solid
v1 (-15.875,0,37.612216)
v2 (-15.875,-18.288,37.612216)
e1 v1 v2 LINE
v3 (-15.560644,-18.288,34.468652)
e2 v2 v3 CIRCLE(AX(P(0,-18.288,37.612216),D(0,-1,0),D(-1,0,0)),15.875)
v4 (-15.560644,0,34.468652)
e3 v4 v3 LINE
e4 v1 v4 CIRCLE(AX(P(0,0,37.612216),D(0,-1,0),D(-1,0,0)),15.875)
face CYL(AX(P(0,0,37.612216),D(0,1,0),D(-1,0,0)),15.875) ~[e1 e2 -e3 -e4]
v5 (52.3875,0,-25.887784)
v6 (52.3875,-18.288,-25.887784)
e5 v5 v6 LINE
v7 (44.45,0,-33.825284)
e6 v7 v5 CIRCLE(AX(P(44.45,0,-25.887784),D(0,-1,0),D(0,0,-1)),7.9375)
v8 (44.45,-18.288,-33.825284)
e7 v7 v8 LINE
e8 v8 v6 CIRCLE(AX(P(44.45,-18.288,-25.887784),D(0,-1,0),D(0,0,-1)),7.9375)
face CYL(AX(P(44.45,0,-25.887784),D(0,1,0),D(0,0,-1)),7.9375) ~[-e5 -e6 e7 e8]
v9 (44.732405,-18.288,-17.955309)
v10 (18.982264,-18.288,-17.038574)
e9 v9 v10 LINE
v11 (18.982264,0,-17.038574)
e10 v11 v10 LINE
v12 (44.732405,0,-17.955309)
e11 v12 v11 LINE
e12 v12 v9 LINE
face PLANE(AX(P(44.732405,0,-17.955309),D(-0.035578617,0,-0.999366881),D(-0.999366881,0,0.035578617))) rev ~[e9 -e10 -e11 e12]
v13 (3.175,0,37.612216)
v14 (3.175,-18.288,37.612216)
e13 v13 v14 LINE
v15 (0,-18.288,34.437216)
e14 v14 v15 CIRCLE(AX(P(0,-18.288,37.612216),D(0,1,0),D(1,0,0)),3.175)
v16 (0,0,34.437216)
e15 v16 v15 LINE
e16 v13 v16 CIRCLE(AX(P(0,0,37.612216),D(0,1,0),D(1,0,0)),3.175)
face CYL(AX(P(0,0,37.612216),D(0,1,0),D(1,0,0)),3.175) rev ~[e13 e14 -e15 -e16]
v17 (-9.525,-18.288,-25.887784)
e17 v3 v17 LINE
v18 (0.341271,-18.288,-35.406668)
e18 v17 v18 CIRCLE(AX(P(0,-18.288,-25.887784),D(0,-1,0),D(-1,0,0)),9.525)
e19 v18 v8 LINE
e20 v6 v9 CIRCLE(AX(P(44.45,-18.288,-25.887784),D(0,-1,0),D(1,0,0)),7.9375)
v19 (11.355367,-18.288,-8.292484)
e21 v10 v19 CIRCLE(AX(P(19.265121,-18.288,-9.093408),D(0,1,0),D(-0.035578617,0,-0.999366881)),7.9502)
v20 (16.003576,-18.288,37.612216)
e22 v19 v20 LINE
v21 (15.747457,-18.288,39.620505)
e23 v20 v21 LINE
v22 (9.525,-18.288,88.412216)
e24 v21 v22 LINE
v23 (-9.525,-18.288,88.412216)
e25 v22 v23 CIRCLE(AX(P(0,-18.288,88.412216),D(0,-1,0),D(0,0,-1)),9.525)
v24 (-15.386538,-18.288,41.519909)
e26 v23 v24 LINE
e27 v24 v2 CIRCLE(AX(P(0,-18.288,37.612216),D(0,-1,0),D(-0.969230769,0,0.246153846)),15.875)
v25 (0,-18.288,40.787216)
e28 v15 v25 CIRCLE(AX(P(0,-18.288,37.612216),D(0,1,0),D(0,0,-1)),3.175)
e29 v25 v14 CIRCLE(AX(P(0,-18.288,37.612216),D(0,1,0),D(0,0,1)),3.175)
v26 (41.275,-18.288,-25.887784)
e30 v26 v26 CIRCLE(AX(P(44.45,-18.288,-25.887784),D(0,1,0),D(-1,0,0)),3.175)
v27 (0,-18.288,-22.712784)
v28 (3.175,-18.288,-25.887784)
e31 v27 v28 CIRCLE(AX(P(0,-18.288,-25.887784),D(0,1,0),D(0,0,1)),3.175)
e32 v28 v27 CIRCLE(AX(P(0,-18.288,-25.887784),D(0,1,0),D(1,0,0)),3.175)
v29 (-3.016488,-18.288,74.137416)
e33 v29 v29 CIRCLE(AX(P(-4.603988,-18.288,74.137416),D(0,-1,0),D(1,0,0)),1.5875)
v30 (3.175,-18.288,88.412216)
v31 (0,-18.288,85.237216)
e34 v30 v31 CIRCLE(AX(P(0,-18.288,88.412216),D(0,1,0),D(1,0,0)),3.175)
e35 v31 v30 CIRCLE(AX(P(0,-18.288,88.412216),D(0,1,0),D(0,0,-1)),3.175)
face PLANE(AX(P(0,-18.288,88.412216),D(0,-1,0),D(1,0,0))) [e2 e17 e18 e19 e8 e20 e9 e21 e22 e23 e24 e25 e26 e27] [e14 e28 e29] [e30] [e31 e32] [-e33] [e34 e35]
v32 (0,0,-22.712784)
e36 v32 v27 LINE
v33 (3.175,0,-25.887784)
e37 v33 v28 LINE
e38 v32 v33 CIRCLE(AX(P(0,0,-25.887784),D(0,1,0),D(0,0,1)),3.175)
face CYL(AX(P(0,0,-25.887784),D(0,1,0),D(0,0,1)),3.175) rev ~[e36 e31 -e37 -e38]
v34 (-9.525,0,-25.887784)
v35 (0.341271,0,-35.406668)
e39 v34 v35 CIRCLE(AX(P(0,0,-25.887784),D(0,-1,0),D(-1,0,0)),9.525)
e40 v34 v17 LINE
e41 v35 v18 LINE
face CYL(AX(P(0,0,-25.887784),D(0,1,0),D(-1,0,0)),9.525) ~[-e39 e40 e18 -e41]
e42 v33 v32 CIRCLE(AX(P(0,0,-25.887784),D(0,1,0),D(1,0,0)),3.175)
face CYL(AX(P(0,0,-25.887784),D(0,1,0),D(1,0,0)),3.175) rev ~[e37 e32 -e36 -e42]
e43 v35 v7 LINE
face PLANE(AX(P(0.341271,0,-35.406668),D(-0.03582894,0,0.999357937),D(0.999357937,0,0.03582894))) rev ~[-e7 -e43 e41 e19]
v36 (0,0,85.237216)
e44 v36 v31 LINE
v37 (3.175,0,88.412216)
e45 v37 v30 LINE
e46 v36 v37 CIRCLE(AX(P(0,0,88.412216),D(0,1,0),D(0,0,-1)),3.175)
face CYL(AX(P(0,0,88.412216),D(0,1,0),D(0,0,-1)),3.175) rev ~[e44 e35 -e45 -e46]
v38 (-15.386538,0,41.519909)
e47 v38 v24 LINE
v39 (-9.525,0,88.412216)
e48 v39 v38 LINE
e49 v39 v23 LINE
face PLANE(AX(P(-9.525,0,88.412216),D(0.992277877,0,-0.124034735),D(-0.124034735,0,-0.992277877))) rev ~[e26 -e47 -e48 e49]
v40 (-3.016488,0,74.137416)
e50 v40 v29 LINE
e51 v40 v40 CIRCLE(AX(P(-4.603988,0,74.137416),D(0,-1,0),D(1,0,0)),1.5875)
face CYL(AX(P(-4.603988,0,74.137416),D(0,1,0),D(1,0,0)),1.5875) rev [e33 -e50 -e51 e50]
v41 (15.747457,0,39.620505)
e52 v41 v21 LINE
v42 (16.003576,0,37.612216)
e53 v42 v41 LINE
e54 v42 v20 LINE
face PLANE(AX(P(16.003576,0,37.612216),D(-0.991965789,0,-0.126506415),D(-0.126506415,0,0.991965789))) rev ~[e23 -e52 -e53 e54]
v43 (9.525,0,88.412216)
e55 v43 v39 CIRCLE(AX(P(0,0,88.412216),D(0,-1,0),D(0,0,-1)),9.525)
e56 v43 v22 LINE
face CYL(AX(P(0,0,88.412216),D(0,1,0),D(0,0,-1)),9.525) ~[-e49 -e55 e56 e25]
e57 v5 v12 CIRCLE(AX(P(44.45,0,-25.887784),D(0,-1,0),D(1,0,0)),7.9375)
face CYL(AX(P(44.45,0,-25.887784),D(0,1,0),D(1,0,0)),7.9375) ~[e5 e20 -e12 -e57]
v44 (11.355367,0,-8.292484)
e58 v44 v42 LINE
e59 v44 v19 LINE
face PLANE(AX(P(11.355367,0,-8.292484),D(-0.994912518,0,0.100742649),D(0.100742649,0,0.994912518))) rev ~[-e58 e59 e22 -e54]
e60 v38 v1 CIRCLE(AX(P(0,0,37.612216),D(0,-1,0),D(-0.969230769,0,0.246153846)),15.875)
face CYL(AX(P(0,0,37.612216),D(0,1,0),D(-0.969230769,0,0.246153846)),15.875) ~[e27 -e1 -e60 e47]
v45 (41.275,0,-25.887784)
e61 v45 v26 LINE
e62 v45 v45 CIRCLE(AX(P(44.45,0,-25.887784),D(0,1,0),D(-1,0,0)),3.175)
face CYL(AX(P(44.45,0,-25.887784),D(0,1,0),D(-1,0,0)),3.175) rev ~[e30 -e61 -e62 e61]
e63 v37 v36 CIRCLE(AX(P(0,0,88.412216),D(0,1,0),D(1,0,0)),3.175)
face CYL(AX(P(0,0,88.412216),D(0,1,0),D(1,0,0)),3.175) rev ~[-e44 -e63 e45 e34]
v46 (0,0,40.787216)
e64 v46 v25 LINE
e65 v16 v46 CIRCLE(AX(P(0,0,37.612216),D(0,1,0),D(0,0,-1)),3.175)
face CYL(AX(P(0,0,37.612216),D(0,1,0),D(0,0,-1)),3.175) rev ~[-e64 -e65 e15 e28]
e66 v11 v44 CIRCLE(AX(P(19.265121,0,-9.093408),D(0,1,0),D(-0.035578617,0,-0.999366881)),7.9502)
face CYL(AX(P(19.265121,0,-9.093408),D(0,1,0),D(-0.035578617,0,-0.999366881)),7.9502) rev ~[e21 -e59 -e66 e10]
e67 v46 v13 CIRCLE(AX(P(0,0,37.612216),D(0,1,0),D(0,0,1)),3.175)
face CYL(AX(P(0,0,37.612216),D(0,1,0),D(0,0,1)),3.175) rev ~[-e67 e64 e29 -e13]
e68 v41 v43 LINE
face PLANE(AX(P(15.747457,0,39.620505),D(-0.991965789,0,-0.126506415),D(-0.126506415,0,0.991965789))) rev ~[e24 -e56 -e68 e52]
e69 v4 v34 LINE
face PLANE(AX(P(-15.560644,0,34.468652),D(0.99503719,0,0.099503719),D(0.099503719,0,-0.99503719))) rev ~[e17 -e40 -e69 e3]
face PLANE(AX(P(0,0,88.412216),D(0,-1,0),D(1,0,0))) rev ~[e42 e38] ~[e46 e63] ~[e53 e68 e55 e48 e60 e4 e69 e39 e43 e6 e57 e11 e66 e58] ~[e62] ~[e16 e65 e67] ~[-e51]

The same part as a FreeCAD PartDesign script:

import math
import FreeCAD as App
import Part
import Sketcher
from FreeCAD import Vector
Q = App.Units.Quantity

doc = App.newDocument("Part")
params = doc.addObject("Spreadsheet::Sheet", "Params")
for row, (alias, value) in enumerate([
    ("sketch1_diameter", "0.25 in"),
    ("sketch1_diameter2", "0.125 in"),
    ("sketch1_radius", "0.375 in"),
    ("sketch1_radius2", "0.3125 in"),
    ("sketch1_radius3", "0.313 in"),
    ("pad1_length", "0.72 in"),
], start=1):
    params.set(f"A{row}", alias)
    params.set(f"B{row}", "=" + value)
    params.setAlias(f"B{row}", alias)

body = doc.addObject("PartDesign::Body", "Body")

# Sketch on XZ plane
sketch1 = doc.addObject("Sketcher::SketchObject", "Sketch")
body.addObject(sketch1)
sketch1.AttachmentSupport = (doc.XZ_Plane, [""])
sketch1.MapMode = "FlatFace"
sketch1.addGeometry([
    Part.ArcOfCircle(Part.Circle(Vector(0, -25.887784, 0), Vector(0, 0, 1), 9.525), math.radians(180), math.radians(272.053286)),  # 0
    Part.LineSegment(Vector(0.341271, -35.406668, 0), Vector(44.45, -33.825284, 0)),  # 1
    Part.ArcOfCircle(Part.Circle(Vector(44.45, -25.887784, 0), Vector(0, 0, 1), 7.9375), math.radians(-90), math.radians(0)),  # 2
    Part.ArcOfCircle(Part.Circle(Vector(44.45, -25.887784, 0), Vector(0, 0, 1), 7.9375), math.radians(0), math.radians(87.961065)),  # 3
    Part.LineSegment(Vector(44.732405, -17.955309, 0), Vector(18.982264, -17.038574, 0)),  # 4
    Part.ArcOfCircle(Part.Circle(Vector(19.265121, -9.093408, 0), Vector(0, 0, 1), 7.9502), math.radians(174.218063), math.radians(267.961065)),  # 5
    Part.LineSegment(Vector(11.355367, -8.292484, 0), Vector(16.003576, 37.612216, 0)),  # 6
    Part.LineSegment(Vector(16.003576, 37.612216, 0), Vector(15.747457, 39.620505, 0)),  # 7
    Part.LineSegment(Vector(15.747457, 39.620505, 0), Vector(9.525, 88.412216, 0)),  # 8
    Part.ArcOfCircle(Part.Circle(Vector(0, 88.412216, 0), Vector(0, 0, 1), 9.525), math.radians(0), math.radians(180)),  # 9
    Part.LineSegment(Vector(-9.525, 88.412216, 0), Vector(-15.386538, 41.519909, 0)),  # 10
    Part.ArcOfCircle(Part.Circle(Vector(0, 37.612216, 0), Vector(0, 0, 1), 15.875), math.radians(165.749967), math.radians(180)),  # 11
    Part.ArcOfCircle(Part.Circle(Vector(0, 37.612216, 0), Vector(0, 0, 1), 15.875), math.radians(180), math.radians(191.421186)),  # 12
    Part.LineSegment(Vector(-15.560644, 34.468652, 0), Vector(-9.525, -25.887784, 0)),  # 13
    Part.ArcOfCircle(Part.Circle(Vector(0, -25.887784, 0), Vector(0, 0, 1), 3.175), math.radians(90), math.radians(360)),  # 14
    Part.ArcOfCircle(Part.Circle(Vector(0, -25.887784, 0), Vector(0, 0, 1), 3.175), math.radians(0), math.radians(90)),  # 15
    Part.Circle(Vector(44.45, -25.887784, 0), Vector(0, 0, 1), 3.175),  # 16
    Part.ArcOfCircle(Part.Circle(Vector(0, 37.612216, 0), Vector(0, 0, 1), 3.175), math.radians(0), math.radians(90)),  # 17
    Part.ArcOfCircle(Part.Circle(Vector(0, 37.612216, 0), Vector(0, 0, 1), 3.175), math.radians(-90), math.radians(0)),  # 18
    Part.ArcOfCircle(Part.Circle(Vector(0, 37.612216, 0), Vector(0, 0, 1), 3.175), math.radians(90), math.radians(270)),  # 19
    Part.Circle(Vector(-4.603988, 74.137416, 0), Vector(0, 0, 1), 1.5875),  # 20
    Part.ArcOfCircle(Part.Circle(Vector(0, 88.412216, 0), Vector(0, 0, 1), 3.175), math.radians(0), math.radians(270)),  # 21
    Part.ArcOfCircle(Part.Circle(Vector(0, 88.412216, 0), Vector(0, 0, 1), 3.175), math.radians(-90), math.radians(0)),  # 22
], False)
sketch1.addConstraint([
    Sketcher.Constraint("Tangent", 0, 2, 1, 1),
    Sketcher.Constraint("Coincident", 1, 2, 2, 1),
    Sketcher.Constraint("Tangent", 2, 2, 3, 1),
    Sketcher.Constraint("Tangent", 3, 2, 4, 1),
    Sketcher.Constraint("Tangent", 4, 2, 5, 2),
    Sketcher.Constraint("Tangent", 5, 1, 6, 1),
    Sketcher.Constraint("Coincident", 6, 2, 7, 1),
    Sketcher.Constraint("Coincident", 7, 2, 8, 1),
    Sketcher.Constraint("Coincident", 8, 2, 9, 1),
    Sketcher.Constraint("Coincident", 9, 2, 10, 1),
    Sketcher.Constraint("Coincident", 10, 2, 11, 1),
    Sketcher.Constraint("Tangent", 11, 2, 12, 1),
    Sketcher.Constraint("Coincident", 12, 2, 13, 1),
    Sketcher.Constraint("Coincident", 13, 2, 0, 1),
    Sketcher.Constraint("Tangent", 14, 1, 15, 2),
    Sketcher.Constraint("Coincident", 15, 1, 14, 2),
    Sketcher.Constraint("Tangent", 17, 1, 18, 2),
    Sketcher.Constraint("Tangent", 18, 1, 19, 2),
    Sketcher.Constraint("Tangent", 19, 1, 17, 2),
    Sketcher.Constraint("Tangent", 21, 1, 22, 2),
    Sketcher.Constraint("Coincident", 22, 1, 21, 2),
    Sketcher.Constraint("Coincident", 14, 3, 0, 3),
    Sketcher.Constraint("Coincident", 16, 3, 2, 3),
    Sketcher.Constraint("Coincident", 17, 3, 11, 3),
    Sketcher.Constraint("Coincident", 21, 3, 9, 3),
    Sketcher.Constraint("Equal", 2, 3),
    Sketcher.Constraint("Equal", 0, 9),
    Sketcher.Constraint("Equal", 11, 12),
    Sketcher.Constraint("Equal", 15, 16),
    Sketcher.Constraint("Equal", 16, 17),
    Sketcher.Constraint("Equal", 19, 21),
    Sketcher.Constraint("Symmetric", 8, 2, 9, 2, -2),
    Sketcher.Constraint("PointOnObject", 0, 3, -2),
    Sketcher.Constraint("PointOnObject", 11, 3, -2),
    Sketcher.Constraint("PointOnObject", 14, 1, -2),
    Sketcher.Constraint("PointOnObject", 18, 1, -2),
    Sketcher.Constraint("PointOnObject", 19, 1, -2),
    Sketcher.Constraint("PointOnObject", 22, 1, -2),
    Sketcher.Constraint("Parallel", 7, 8),
    Sketcher.Constraint("Horizontal", 0, 3, 2, 3),
    Sketcher.Constraint("Horizontal", 16, 3, 2, 2),
    Sketcher.Constraint("Horizontal", 19, 3, 6, 2),
    Sketcher.Constraint("Horizontal", 22, 3, 8, 2),
    Sketcher.Constraint("Horizontal", 6, 2, 11, 2),
    Sketcher.Constraint("Horizontal", 2, 2, 13, 2),
    Sketcher.Constraint("Horizontal", 13, 2, 15, 1),
    Sketcher.Constraint("Horizontal", 11, 2, 17, 1),
    Sketcher.Constraint("Horizontal", 9, 2, 21, 1),
    Sketcher.Constraint("Vertical", 16, 3, 1, 2),
    Sketcher.Constraint("Diameter", 16, Q("0.25 in")),
    Sketcher.Constraint("Diameter", 20, Q("0.125 in")),
    Sketcher.Constraint("Radius", 0, Q("0.375 in")),
    Sketcher.Constraint("Radius", 2, Q("0.3125 in")),
    Sketcher.Constraint("Radius", 5, Q("0.313 in")),
    Sketcher.Constraint("Radius", 11, Q("0.625 in")),
    Sketcher.Constraint("DistanceY", 11, 3, 9, 3, Q("2 in")),
    Sketcher.Constraint("DistanceY", 0, 3, 9, 3, Q("4.5 in")),
    Sketcher.Constraint("DistanceX", -1, 1, 2, 3, Q("1.75 in")),
    Sketcher.Constraint("DistanceY", 20, 3, 9, 3, Q("0.562 in")),
    Sketcher.Constraint("DistanceY", 0, 3, 5, 1, 17.5953),
    Sketcher.Constraint("Distance", 8, 49.186889),
    Sketcher.Constraint("DistanceX", -1, 1, 5, 3, 19.265121),
    Sketcher.Constraint("DistanceY", 0, 2, -1, 1, 35.406668),
    Sketcher.Constraint("DistanceX", 10, 2, -1, 1, 15.386538),
    Sketcher.Constraint("DistanceY", -1, 1, 12, 2, 34.468652),
    Sketcher.Constraint("DistanceY", 0, 2, 5, 3, 26.31326),
    Sketcher.Constraint("DistanceX", 20, 3, -1, 1, 4.603988),
])
sketch1.setExpression("Constraints[49]", "Params.sketch1_diameter")
sketch1.setExpression("Constraints[50]", "Params.sketch1_diameter2")
sketch1.setExpression("Constraints[51]", "Params.sketch1_radius")
sketch1.setExpression("Constraints[52]", "Params.sketch1_radius2")
sketch1.setExpression("Constraints[53]", "Params.sketch1_radius3")
pad1 = doc.addObject("PartDesign::Pad", "Pad")
body.addObject(pad1)
pad1.Profile = sketch1
pad1.setExpression("Length", "Params.pad1_length")

doc.recompute()
